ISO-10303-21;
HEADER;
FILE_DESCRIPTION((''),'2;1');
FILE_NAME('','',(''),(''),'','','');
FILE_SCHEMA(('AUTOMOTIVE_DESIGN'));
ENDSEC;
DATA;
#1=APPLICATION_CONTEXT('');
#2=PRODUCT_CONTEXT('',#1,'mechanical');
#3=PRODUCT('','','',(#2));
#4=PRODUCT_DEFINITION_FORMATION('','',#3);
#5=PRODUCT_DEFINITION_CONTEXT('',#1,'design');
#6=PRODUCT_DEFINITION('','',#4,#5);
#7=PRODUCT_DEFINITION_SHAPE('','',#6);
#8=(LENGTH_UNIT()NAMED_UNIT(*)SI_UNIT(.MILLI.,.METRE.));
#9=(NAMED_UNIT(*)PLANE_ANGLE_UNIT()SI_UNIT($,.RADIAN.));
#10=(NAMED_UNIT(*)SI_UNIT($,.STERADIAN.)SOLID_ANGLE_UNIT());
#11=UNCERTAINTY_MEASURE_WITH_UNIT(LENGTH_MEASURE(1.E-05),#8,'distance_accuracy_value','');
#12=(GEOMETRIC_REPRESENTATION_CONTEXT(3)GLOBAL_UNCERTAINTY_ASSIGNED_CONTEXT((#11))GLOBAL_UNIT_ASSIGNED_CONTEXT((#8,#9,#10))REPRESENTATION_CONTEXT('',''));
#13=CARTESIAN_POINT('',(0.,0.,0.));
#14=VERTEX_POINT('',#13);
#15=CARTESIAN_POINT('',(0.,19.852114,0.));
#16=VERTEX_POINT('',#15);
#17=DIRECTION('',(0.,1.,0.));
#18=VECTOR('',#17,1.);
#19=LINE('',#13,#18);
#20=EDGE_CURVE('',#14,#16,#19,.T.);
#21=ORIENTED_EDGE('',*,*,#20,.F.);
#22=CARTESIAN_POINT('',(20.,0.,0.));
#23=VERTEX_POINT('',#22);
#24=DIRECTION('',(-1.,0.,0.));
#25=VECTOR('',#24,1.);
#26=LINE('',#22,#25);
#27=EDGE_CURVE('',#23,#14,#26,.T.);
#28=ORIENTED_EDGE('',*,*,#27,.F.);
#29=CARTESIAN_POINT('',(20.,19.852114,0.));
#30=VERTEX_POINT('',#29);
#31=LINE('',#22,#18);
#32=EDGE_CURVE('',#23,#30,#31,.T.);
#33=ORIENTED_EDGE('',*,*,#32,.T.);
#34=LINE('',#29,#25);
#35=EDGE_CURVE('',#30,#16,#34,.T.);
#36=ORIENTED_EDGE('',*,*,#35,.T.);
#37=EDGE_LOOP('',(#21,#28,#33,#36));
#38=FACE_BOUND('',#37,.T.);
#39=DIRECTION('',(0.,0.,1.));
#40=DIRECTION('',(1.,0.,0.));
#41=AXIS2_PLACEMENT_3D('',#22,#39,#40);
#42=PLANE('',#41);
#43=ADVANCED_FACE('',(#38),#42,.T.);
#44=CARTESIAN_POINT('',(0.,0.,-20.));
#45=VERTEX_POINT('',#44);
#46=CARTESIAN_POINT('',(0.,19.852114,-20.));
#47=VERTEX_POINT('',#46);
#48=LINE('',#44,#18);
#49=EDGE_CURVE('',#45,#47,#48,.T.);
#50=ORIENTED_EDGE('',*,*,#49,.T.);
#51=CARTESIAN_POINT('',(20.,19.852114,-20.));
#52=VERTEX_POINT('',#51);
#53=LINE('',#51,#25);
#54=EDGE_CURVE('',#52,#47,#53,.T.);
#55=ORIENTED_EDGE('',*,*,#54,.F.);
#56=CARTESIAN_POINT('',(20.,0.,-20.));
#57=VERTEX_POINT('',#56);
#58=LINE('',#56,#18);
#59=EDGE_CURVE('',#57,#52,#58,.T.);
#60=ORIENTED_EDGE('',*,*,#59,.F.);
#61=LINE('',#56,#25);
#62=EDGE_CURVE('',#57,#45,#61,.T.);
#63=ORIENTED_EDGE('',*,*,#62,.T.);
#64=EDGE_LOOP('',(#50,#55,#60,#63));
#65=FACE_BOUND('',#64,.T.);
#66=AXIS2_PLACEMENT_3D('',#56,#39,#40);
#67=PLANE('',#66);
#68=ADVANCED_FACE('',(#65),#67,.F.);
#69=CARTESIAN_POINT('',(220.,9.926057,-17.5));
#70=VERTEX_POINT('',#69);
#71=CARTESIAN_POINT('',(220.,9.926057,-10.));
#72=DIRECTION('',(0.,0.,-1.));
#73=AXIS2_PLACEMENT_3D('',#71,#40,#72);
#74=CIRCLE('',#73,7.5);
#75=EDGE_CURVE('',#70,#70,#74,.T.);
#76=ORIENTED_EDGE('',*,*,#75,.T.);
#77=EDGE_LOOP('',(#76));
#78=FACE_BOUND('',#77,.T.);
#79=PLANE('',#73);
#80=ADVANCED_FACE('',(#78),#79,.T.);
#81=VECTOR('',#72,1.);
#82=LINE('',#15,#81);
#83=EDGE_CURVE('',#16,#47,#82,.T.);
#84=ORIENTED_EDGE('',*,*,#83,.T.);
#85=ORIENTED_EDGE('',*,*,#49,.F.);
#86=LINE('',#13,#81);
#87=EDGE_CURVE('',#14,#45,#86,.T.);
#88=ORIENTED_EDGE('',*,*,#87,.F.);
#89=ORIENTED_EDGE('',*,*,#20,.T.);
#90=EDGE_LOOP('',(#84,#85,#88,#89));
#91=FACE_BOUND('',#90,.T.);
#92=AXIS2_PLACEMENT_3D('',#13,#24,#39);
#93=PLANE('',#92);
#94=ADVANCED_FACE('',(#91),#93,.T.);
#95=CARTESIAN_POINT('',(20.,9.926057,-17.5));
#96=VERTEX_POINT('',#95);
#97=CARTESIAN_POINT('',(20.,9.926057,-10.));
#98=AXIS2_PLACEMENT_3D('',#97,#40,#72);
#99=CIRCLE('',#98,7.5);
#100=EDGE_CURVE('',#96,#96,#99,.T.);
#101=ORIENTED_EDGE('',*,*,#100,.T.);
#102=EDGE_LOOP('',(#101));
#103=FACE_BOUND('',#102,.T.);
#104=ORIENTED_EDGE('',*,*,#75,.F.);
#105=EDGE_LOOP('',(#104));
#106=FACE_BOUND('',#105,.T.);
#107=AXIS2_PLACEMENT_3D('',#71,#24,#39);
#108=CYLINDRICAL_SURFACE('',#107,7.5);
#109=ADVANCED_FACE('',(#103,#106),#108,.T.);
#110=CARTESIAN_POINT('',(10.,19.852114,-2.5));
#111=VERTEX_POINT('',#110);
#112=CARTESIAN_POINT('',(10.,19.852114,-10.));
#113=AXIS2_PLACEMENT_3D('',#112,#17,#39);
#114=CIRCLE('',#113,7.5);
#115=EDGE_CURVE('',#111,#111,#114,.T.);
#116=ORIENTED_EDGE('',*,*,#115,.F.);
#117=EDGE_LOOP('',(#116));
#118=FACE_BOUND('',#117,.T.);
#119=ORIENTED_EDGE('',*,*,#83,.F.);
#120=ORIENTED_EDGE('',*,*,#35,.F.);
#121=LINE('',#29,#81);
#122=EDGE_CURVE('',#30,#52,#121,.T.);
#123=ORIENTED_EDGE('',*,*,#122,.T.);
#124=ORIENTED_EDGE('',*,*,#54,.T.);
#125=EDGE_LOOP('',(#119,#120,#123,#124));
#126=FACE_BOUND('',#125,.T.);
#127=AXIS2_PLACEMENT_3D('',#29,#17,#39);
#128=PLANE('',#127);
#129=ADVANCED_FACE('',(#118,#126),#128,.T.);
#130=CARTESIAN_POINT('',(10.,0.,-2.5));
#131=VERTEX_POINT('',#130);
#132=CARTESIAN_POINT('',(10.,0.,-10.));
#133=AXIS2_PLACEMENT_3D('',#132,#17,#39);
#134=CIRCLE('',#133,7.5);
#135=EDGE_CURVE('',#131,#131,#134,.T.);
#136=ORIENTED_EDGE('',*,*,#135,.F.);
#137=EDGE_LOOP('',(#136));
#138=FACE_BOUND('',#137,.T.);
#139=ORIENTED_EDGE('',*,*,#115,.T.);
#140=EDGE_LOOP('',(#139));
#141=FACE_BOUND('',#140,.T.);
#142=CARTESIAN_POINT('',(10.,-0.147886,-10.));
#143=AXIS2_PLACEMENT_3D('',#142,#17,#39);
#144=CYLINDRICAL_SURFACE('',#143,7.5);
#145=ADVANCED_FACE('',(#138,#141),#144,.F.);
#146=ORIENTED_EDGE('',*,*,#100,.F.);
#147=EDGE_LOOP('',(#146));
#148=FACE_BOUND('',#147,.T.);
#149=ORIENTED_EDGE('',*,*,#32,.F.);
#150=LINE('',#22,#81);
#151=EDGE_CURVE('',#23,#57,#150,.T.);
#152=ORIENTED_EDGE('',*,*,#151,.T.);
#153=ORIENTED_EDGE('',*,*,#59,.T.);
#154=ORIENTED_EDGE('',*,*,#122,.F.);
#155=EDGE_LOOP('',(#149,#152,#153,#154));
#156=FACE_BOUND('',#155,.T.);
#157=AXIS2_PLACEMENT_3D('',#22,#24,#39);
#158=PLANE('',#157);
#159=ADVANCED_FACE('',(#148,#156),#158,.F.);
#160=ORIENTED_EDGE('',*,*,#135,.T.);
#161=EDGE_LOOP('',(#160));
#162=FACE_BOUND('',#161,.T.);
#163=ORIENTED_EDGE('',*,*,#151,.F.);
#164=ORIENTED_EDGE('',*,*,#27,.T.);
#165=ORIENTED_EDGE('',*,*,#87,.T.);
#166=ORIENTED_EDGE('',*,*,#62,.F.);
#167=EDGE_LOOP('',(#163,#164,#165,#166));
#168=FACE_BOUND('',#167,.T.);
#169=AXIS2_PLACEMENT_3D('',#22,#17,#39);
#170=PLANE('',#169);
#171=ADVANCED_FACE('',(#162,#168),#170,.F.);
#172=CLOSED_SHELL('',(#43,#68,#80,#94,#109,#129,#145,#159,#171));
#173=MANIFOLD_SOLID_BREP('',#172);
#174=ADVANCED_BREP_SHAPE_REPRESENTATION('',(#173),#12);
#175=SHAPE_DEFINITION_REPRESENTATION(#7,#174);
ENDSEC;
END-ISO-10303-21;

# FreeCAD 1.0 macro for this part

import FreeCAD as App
import Part
import Sketcher

doc = App.newDocument("Part")
body = doc.addObject("PartDesign::Body", "Body")

# Sketch on YZ plane
sketch1 = doc.addObject("Sketcher::SketchObject", "Sketch")
body.addObject(sketch1)
sketch1.AttachmentSupport = (doc.YZ_Plane, [""])
sketch1.MapMode = "FlatFace"
sketch1.addGeometry([
    Part.LineSegment(App.Vector(20, 0, 0), App.Vector(0, 0, 0)),
    Part.LineSegment(App.Vector(0, 0, 0), App.Vector(0, -20, 0)),
    Part.LineSegment(App.Vector(0, -20, 0), App.Vector(20, -20, 0)),
    Part.LineSegment(App.Vector(20, -20, 0), App.Vector(20, 0, 0)),
], False)
sketch1.addConstraint([
    Sketcher.Constraint("Coincident", 0, 2, 1, 1),
    Sketcher.Constraint("Coincident", 1, 2, 2, 1),
    Sketcher.Constraint("Coincident", 2, 2, 3, 1),
    Sketcher.Constraint("Coincident", 3, 2, 0, 1),
    Sketcher.Constraint("Horizontal", 0),
    Sketcher.Constraint("Vertical", 1),
    Sketcher.Constraint("Horizontal", 2),
    Sketcher.Constraint("Vertical", 3),
    Sketcher.Constraint("Coincident", 0, 2, -1, 1),
    Sketcher.Constraint("DistanceY", 1, 2, 1, 1, 20.0),
    Sketcher.Constraint("DistanceX", 0, 2, 0, 1, 19.852114),
])
pad1 = doc.addObject("PartDesign::Pad", "Pad")
body.addObject(pad1)
pad1.Profile = sketch1
pad1.Length = 20

# Sketch on XZ plane
sketch2 = doc.addObject("Sketcher::SketchObject", "Sketch001")
body.addObject(sketch2)
sketch2.AttachmentSupport = (doc.XZ_Plane, [""])
sketch2.MapMode = "FlatFace"
sketch2.AttachmentOffset = App.Placement(App.Vector(0, 0, -19.852114), App.Rotation())
sketch2.addGeometry(Part.Circle(App.Vector(10, -10, 0), App.Vector(0, 0, 1), 8), False)
sketch2.addConstraint([
    Sketcher.Constraint("Diameter", 0, 15.0),
    Sketcher.Constraint("DistanceX", -1, 1, 0, 3, 10.0),
    Sketcher.Constraint("DistanceY", 0, 3, -1, 1, 10.0),
])
pocket1 = doc.addObject("PartDesign::Pocket", "Pocket")
body.addObject(pocket1)
pocket1.Profile = sketch2
pocket1.Length = 20
pocket1.Reversed = True

# Sketch on YZ plane
sketch3 = doc.addObject("Sketcher::SketchObject", "Sketch002")
body.addObject(sketch3)
sketch3.AttachmentSupport = (doc.YZ_Plane, [""])
sketch3.MapMode = "FlatFace"
sketch3.AttachmentOffset = App.Placement(App.Vector(0, 0, 20), App.Rotation())
sketch3.addGeometry(Part.Circle(App.Vector(10, -10, 0), App.Vector(0, 0, 1), 8), False)
sketch3.addConstraint([
    Sketcher.Constraint("Diameter", 0, 15.0),
    Sketcher.Constraint("DistanceY", 0, 3, -1, 1, 10.0),
    Sketcher.Constraint("DistanceX", -1, 1, 0, 3, 9.926057),
])
pad2 = doc.addObject("PartDesign::Pad", "Pad001")
body.addObject(pad2)
pad2.Profile = sketch3
pad2.Length = 200

doc.recompute()
